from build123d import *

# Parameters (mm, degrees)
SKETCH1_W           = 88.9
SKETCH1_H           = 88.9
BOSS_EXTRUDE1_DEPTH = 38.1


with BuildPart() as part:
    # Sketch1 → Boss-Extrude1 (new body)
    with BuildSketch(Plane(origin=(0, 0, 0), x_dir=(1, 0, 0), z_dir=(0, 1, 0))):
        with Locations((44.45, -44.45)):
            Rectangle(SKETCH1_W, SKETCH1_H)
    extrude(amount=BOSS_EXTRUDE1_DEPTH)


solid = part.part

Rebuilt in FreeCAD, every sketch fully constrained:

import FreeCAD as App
import Part
import Sketcher

V = App.Vector
Q = App.Units.Quantity

doc = App.newDocument("Part")
body = doc.addObject("PartDesign::Body", "Body")

sketch1 = body.newObject("Sketcher::SketchObject", "Sketch")
sketch1.AttachmentSupport = (doc.getObject("XZ_Plane"), [""])
sketch1.MapMode = "FlatFace"
sketch1.addGeometry([
    Part.LineSegment(V(0, 0, 0), V(0, 89, 0)),
    Part.LineSegment(V(0, 89, 0), V(89, 89, 0)),
    Part.LineSegment(V(89, 89, 0), V(89, 0, 0)),
    Part.LineSegment(V(89, 0, 0), V(0, 0, 0)),
], False)
sketch1.addConstraint([
    Sketcher.Constraint("Coincident", 0, 2, 1, 1),
    Sketcher.Constraint("Coincident", 1, 2, 2, 1),
    Sketcher.Constraint("Coincident", 2, 2, 3, 1),
    Sketcher.Constraint("Coincident", 3, 2, 0, 1),
    Sketcher.Constraint("Vertical", 0),
    Sketcher.Constraint("Horizontal", 1),
    Sketcher.Constraint("Vertical", 2),
    Sketcher.Constraint("Horizontal", 3),
    Sketcher.Constraint("Coincident", 3, 2, -1, 1),
    Sketcher.Constraint("Equal", 3, 0),
    Sketcher.Constraint("DistanceX", 1, 1, 1, 2, Q("3.5 in")),
])
pad1 = body.newObject("PartDesign::Pad", "Pad")
pad1.Profile = sketch1
pad1.Length = Q("1.5 in")
pad1.Reversed = True

doc.recompute()
